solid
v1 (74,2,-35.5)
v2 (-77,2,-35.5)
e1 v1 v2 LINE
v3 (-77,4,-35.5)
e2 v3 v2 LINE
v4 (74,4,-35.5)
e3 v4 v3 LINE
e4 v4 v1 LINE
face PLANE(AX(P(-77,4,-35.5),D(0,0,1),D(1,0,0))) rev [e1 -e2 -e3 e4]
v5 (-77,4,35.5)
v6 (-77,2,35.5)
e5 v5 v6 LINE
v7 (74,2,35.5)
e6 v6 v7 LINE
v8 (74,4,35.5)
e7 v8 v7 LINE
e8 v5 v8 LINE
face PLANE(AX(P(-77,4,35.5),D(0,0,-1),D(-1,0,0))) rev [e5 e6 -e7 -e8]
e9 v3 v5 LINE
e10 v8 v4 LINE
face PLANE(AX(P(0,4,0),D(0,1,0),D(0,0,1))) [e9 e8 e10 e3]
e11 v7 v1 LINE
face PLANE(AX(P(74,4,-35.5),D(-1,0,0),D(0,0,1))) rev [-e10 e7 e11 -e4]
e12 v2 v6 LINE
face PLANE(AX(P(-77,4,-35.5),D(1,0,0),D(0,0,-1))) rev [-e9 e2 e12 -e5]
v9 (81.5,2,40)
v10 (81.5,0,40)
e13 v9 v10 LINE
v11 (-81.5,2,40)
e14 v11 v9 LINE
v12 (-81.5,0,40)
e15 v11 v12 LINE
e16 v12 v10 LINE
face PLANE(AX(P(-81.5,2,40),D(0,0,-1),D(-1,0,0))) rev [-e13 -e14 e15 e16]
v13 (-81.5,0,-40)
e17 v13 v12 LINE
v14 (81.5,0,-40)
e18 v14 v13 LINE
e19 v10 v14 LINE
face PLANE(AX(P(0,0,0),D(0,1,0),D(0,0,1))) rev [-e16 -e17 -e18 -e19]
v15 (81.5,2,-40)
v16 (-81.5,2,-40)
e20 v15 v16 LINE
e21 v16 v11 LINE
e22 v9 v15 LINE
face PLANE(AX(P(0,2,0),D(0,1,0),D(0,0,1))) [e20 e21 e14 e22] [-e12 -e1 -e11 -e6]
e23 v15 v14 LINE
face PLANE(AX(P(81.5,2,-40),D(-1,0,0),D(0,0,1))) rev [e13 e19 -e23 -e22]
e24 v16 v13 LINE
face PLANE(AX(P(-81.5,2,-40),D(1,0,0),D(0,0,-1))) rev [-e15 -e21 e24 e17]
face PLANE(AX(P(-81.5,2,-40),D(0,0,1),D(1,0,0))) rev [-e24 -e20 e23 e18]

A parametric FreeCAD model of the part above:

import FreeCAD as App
import Part
import Sketcher

V = App.Vector
Q = App.Units.Quantity

doc = App.newDocument("Part")
params = doc.addObject("Spreadsheet::Sheet", "Params")
for row, (alias, value) in enumerate([
    ("sketch1_width", "163 mm"),
    ("sketch1_height", "80 mm"),
    ("pad1_length", "2 mm"),
    ("sketch2_width", "151 mm"),
    ("sketch2_height", "71 mm"),
    ("pad2_length", "2 mm"),
], start=1):
    params.set(f"A{row}", alias)
    params.set(f"B{row}", "=" + value)
    params.setAlias(f"B{row}", alias)

body = doc.addObject("PartDesign::Body", "Body")

# Sketch on XZ plane
sketch1 = body.newObject("Sketcher::SketchObject", "Sketch")
sketch1.AttachmentSupport = (doc.getObject("XZ_Plane"), [""])
sketch1.MapMode = "FlatFace"
sketch1.addGeometry([
    Part.LineSegment(V(-82, -40, 0), V(-82, 40, 0)),
    Part.LineSegment(V(-82, 40, 0), V(82, 40, 0)),
    Part.LineSegment(V(82, 40, 0), V(82, -40, 0)),
    Part.LineSegment(V(82, -40, 0), V(-82, -40, 0)),
], False)
sketch1.addConstraint([
    Sketcher.Constraint("Coincident", 0, 2, 1, 1),
    Sketcher.Constraint("Coincident", 1, 2, 2, 1),
    Sketcher.Constraint("Coincident", 2, 2, 3, 1),
    Sketcher.Constraint("Coincident", 3, 2, 0, 1),
    Sketcher.Constraint("Vertical", 0),
    Sketcher.Constraint("Horizontal", 1),
    Sketcher.Constraint("Vertical", 2),
    Sketcher.Constraint("Horizontal", 3),
    Sketcher.Constraint("Symmetric", 0, 2, 2, 2, -1, 1),
    Sketcher.Constraint("DistanceX", 1, 1, 1, 2, Q("163 mm")),
    Sketcher.Constraint("DistanceY", 0, 1, 0, 2, Q("80 mm")),
])
sketch1.setExpression("Constraints[9]", "Params.sketch1_width")
sketch1.setExpression("Constraints[10]", "Params.sketch1_height")
pad1 = body.newObject("PartDesign::Pad", "Pad")
pad1.Profile = sketch1
pad1.setExpression("Length", "Params.pad1_length")
pad1.Reversed = True

# Sketch on XZ plane
sketch2 = body.newObject("Sketcher::SketchObject", "Sketch001")
sketch2.AttachmentSupport = (doc.getObject("XZ_Plane"), [""])
sketch2.MapMode = "FlatFace"
sketch2.AttachmentOffset = App.Placement(V(0, 0, -2), App.Rotation())
sketch2.addGeometry([
    Part.LineSegment(V(-77, -36, 0), V(-77, 36, 0)),
    Part.LineSegment(V(-77, 36, 0), V(74, 36, 0)),
    Part.LineSegment(V(74, 36, 0), V(74, -36, 0)),
    Part.LineSegment(V(74, -36, 0), V(-77, -36, 0)),
], False)
sketch2.addConstraint([
    Sketcher.Constraint("Coincident", 0, 2, 1, 1),
    Sketcher.Constraint("Coincident", 1, 2, 2, 1),
    Sketcher.Constraint("Coincident", 2, 2, 3, 1),
    Sketcher.Constraint("Coincident", 3, 2, 0, 1),
    Sketcher.Constraint("Vertical", 0),
    Sketcher.Constraint("Horizontal", 1),
    Sketcher.Constraint("Vertical", 2),
    Sketcher.Constraint("Horizontal", 3),
    Sketcher.Constraint("DistanceX", 1, 1, 1, 2, Q("151 mm")),
    Sketcher.Constraint("DistanceY", 0, 1, 0, 2, Q("71 mm")),
    Sketcher.Constraint("DistanceX", 0, 2, -1, 1, Q("77 mm")),
    Sketcher.Constraint("DistanceY", -1, 1, 0, 2, Q("35.5 mm")),
])
sketch2.setExpression("Constraints[8]", "Params.sketch2_width")
sketch2.setExpression("Constraints[9]", "Params.sketch2_height")
pad2 = body.newObject("PartDesign::Pad", "Pad001")
pad2.Profile = sketch2
pad2.setExpression("Length", "Params.pad2_length")
pad2.Reversed = True

doc.recompute()
